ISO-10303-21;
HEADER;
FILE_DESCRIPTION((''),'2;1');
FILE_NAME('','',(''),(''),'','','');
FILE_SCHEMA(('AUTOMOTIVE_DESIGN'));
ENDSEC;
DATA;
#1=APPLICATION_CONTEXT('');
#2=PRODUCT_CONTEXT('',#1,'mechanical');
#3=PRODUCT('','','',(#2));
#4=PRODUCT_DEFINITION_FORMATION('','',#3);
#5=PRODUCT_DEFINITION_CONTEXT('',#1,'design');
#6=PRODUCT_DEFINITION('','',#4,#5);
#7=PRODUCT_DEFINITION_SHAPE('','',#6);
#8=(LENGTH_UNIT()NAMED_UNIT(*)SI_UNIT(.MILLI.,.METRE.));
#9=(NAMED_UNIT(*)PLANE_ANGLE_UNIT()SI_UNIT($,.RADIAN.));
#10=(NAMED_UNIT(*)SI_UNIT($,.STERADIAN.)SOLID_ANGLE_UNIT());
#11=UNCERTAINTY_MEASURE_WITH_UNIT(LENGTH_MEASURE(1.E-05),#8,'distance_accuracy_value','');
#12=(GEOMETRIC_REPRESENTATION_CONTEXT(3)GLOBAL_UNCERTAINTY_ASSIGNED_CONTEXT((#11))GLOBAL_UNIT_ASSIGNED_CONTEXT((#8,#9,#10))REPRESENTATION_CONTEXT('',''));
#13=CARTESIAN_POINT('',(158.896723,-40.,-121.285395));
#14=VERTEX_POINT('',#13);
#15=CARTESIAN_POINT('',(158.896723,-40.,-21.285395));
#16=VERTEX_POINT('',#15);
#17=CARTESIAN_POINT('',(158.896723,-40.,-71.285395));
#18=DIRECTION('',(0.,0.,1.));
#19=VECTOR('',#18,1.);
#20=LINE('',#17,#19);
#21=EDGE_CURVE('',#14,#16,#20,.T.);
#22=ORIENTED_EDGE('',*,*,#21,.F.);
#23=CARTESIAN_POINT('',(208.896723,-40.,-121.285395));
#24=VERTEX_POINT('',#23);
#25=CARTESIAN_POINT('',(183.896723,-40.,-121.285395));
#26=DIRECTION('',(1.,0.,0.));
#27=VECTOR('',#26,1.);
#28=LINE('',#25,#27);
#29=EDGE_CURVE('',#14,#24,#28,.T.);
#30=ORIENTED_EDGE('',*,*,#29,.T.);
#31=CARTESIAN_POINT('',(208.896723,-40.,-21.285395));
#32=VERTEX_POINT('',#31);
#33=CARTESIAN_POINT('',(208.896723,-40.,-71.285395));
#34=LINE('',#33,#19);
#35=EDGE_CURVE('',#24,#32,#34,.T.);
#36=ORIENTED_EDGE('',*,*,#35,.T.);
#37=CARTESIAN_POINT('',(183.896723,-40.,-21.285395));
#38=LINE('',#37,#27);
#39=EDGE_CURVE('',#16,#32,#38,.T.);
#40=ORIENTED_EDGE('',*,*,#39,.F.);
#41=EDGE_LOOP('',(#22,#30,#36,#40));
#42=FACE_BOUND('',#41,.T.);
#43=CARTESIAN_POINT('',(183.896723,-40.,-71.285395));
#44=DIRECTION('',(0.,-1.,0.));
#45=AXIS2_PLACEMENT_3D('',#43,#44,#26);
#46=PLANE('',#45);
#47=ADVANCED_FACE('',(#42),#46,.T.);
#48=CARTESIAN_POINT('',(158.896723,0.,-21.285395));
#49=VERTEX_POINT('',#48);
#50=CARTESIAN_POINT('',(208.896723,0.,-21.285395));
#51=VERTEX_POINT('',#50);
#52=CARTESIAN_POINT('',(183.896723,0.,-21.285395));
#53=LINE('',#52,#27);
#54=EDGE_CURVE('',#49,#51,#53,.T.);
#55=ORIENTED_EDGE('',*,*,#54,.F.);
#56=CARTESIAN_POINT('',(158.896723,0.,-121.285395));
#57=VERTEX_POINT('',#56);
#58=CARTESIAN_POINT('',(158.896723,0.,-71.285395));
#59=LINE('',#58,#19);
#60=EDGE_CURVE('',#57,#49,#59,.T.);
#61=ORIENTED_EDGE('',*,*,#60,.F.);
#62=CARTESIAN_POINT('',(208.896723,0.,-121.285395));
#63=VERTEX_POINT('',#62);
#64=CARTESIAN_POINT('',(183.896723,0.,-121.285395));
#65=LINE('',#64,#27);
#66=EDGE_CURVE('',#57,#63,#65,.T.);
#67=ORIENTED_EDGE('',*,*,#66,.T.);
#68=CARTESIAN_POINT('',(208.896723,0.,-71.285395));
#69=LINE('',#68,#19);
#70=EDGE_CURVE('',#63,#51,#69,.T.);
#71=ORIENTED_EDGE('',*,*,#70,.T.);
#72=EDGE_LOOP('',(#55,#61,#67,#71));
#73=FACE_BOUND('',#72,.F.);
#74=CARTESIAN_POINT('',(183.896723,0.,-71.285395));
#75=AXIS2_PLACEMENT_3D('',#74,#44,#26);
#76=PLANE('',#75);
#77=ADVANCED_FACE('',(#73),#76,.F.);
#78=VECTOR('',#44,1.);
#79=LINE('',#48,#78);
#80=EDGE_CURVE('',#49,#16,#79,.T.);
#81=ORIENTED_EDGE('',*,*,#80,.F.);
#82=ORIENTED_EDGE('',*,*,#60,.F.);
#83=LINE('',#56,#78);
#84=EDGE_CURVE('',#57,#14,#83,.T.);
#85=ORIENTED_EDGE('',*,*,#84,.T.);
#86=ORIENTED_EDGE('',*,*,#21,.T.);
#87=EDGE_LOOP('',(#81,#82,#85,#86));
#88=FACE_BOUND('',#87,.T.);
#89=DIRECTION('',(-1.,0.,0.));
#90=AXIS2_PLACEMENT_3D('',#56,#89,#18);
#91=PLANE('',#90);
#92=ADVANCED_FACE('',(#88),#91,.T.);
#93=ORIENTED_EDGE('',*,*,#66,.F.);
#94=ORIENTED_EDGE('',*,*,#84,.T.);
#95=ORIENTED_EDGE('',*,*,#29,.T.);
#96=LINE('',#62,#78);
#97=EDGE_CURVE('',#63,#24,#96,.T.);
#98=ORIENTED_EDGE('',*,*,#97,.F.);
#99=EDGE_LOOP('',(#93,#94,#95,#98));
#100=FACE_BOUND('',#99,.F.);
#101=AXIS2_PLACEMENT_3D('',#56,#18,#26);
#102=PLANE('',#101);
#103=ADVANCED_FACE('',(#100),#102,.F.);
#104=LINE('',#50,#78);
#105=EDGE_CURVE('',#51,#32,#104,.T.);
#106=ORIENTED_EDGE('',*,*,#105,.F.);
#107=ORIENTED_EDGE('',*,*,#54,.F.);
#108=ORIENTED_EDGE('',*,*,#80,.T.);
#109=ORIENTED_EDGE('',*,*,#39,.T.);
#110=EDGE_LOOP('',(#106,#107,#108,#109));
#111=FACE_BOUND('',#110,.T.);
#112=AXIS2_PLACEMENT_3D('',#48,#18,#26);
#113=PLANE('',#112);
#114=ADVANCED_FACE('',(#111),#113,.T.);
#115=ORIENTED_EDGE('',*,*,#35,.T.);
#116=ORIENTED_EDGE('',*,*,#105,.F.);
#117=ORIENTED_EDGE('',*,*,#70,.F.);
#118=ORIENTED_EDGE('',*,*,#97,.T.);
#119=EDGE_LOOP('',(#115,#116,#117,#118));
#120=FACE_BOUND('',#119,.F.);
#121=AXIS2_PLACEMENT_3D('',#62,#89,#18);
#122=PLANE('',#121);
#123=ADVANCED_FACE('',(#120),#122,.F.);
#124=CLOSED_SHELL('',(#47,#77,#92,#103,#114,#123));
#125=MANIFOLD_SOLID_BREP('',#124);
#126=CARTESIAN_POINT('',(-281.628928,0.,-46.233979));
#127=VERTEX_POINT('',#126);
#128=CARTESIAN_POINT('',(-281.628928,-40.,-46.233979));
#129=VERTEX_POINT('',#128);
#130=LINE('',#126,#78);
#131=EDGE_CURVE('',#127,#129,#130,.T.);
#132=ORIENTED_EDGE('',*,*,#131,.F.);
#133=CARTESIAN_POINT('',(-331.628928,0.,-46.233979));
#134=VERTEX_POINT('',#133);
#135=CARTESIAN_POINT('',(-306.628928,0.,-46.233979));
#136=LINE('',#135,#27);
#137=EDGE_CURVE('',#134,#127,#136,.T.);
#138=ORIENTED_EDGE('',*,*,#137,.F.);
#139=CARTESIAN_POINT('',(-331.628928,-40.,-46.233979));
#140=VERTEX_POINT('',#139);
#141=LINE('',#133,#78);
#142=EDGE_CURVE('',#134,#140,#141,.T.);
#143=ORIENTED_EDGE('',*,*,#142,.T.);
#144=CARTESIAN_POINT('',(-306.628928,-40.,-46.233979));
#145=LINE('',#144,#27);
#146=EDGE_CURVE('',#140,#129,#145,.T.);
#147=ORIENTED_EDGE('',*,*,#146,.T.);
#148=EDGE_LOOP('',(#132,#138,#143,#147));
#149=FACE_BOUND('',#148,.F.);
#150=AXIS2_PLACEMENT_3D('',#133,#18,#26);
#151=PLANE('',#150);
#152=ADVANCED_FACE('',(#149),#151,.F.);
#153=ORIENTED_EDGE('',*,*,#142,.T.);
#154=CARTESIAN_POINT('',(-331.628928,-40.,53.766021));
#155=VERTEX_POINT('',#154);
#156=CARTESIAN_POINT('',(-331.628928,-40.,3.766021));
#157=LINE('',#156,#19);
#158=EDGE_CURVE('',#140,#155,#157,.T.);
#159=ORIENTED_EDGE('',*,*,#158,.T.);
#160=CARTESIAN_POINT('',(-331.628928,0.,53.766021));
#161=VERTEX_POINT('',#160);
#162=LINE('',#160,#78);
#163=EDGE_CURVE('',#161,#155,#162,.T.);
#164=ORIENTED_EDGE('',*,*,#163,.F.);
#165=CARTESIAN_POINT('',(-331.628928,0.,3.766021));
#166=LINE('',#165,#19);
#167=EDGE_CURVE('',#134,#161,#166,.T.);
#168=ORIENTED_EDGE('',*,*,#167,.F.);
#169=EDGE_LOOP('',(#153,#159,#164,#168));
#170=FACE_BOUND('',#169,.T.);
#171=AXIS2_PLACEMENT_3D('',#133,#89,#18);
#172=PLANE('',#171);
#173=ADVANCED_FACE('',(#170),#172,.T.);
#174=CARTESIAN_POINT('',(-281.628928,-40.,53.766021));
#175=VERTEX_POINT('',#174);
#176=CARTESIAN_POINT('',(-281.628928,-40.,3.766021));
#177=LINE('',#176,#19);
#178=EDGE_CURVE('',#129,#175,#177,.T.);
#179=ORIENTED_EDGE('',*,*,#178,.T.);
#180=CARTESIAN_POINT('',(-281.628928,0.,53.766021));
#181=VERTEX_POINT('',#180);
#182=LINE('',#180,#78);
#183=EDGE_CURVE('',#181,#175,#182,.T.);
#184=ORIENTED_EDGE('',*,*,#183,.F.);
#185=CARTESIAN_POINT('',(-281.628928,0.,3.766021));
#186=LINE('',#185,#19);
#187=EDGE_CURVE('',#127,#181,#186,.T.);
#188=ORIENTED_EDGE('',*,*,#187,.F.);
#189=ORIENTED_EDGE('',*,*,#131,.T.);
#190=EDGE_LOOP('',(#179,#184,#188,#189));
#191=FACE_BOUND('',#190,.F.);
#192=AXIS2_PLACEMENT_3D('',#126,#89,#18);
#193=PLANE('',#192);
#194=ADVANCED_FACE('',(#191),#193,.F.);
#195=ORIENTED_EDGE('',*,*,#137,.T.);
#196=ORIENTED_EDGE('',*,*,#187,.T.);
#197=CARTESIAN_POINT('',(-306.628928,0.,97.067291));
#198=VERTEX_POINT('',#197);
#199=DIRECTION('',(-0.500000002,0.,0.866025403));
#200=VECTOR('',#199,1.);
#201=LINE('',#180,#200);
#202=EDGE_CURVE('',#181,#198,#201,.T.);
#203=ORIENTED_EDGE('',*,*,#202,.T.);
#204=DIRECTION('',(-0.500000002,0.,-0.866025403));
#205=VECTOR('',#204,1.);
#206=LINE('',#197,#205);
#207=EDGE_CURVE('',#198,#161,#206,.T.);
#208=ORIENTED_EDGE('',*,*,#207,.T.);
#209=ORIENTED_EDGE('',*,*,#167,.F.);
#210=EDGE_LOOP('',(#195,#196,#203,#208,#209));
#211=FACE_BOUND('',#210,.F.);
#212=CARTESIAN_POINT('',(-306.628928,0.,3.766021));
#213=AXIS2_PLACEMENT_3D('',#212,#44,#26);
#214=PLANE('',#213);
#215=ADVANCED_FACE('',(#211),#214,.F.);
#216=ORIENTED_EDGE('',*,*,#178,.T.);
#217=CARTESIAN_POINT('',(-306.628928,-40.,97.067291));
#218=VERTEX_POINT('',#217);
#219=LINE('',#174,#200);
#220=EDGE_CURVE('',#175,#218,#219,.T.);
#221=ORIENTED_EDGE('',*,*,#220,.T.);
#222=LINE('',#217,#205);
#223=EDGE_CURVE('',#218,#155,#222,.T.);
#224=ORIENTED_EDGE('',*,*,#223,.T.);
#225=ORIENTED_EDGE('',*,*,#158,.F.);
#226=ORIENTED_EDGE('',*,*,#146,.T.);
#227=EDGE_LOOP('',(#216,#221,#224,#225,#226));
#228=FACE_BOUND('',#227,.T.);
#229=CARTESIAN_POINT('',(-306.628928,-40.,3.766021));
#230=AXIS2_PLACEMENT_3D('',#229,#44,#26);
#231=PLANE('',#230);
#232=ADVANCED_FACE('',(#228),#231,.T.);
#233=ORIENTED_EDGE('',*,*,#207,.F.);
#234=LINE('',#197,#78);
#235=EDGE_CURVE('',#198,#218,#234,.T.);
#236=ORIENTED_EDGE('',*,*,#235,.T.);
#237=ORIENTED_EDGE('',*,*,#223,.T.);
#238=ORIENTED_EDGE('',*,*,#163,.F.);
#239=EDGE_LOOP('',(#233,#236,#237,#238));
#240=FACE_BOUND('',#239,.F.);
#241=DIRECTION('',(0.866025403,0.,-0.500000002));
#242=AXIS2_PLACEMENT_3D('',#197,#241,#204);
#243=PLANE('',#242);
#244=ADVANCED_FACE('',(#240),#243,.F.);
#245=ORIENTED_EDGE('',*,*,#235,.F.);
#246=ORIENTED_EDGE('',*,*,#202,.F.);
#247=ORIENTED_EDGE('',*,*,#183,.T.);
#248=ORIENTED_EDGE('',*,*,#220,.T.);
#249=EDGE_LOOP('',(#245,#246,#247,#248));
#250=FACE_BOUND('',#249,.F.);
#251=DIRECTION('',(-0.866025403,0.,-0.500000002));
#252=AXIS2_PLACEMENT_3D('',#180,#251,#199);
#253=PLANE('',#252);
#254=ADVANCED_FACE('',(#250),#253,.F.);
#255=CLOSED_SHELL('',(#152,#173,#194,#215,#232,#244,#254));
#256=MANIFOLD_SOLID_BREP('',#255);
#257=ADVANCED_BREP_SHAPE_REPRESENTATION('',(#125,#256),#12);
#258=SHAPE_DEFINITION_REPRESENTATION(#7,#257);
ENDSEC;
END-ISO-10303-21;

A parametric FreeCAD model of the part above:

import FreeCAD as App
import Part
import Sketcher
Q = App.Units.Quantity


def add_polygon(sketch, points):
    """Adds a closed chain of lines whose ends are joined by coincident constraints."""
    first, n = sketch.GeometryCount, len(points)
    for a, b in zip(points, points[1:] + points[:1]):
        sketch.addGeometry(Part.LineSegment(App.Vector(*a, 0), App.Vector(*b, 0)), False)
    for i in range(n):
        sketch.addConstraint(Sketcher.Constraint("Coincident", first + i, 2, first + (i + 1) % n, 1))

doc = App.newDocument("Part")
body = doc.addObject("PartDesign::Body", "Body")

# Sketch on XZ plane
sketch1 = doc.addObject("Sketcher::SketchObject", "Sketch")
body.addObject(sketch1)
sketch1.AttachmentSupport = (doc.XZ_Plane, [""])
sketch1.MapMode = "FlatFace"
add_polygon(sketch1, [(-331.628928, 53.766021), (-331.628928, -46.233979), (-281.628928, -46.233979), (-281.628928, 53.766021), (-306.628928, 97.067291)])  # lines 0-4
sketch1.addConstraint([
    Sketcher.Constraint("Vertical", 0),
    Sketcher.Constraint("Horizontal", 1),
    Sketcher.Constraint("Vertical", 2),
    Sketcher.Constraint("Horizontal", 2, 2, 4, 2),
    Sketcher.Constraint("Equal", 3, 4),
    Sketcher.Constraint("DistanceX", 1, 1, 1, 2, 50.0),
    Sketcher.Constraint("DistanceY", 0, 2, 0, 1, 100.0),
    Sketcher.Constraint("Angle", 3, Q("120 deg")),
    Sketcher.Constraint("DistanceY", 0, 2, -1, 1, 46.233979),
    Sketcher.Constraint("DistanceX", 0, 2, -1, 1, 331.628928),
])
pad1 = doc.addObject("PartDesign::Pad", "Pad")
body.addObject(pad1)
pad1.Profile = sketch1
pad1.Length = 40
body2 = doc.addObject("PartDesign::Body", "Body001")

# Sketch on XZ plane
sketch2 = doc.addObject("Sketcher::SketchObject", "Sketch001")
body2.addObject(sketch2)
sketch2.AttachmentSupport = (doc.getObject("XZ_Plane001"), [""])
sketch2.MapMode = "FlatFace"
add_polygon(sketch2, [(158.896723, -21.285395), (158.896723, -121.285395), (208.896723, -121.285395), (208.896723, -21.285395)])  # lines 0-3
sketch2.addConstraint([
    Sketcher.Constraint("Vertical", 0),
    Sketcher.Constraint("Horizontal", 1),
    Sketcher.Constraint("Vertical", 2),
    Sketcher.Constraint("Horizontal", 3),
    Sketcher.Constraint("DistanceX", 1, 1, 1, 2, 50.0),
    Sketcher.Constraint("DistanceY", 0, 2, 0, 1, 100.0),
    Sketcher.Constraint("DistanceX", -1, 1, 0, 2, 158.896723),
    Sketcher.Constraint("DistanceY", 0, 2, -1, 1, 121.285395),
])
pad2 = doc.addObject("PartDesign::Pad", "Pad001")
body2.addObject(pad2)
pad2.Profile = sketch2
pad2.Length = 40

doc.recompute()
